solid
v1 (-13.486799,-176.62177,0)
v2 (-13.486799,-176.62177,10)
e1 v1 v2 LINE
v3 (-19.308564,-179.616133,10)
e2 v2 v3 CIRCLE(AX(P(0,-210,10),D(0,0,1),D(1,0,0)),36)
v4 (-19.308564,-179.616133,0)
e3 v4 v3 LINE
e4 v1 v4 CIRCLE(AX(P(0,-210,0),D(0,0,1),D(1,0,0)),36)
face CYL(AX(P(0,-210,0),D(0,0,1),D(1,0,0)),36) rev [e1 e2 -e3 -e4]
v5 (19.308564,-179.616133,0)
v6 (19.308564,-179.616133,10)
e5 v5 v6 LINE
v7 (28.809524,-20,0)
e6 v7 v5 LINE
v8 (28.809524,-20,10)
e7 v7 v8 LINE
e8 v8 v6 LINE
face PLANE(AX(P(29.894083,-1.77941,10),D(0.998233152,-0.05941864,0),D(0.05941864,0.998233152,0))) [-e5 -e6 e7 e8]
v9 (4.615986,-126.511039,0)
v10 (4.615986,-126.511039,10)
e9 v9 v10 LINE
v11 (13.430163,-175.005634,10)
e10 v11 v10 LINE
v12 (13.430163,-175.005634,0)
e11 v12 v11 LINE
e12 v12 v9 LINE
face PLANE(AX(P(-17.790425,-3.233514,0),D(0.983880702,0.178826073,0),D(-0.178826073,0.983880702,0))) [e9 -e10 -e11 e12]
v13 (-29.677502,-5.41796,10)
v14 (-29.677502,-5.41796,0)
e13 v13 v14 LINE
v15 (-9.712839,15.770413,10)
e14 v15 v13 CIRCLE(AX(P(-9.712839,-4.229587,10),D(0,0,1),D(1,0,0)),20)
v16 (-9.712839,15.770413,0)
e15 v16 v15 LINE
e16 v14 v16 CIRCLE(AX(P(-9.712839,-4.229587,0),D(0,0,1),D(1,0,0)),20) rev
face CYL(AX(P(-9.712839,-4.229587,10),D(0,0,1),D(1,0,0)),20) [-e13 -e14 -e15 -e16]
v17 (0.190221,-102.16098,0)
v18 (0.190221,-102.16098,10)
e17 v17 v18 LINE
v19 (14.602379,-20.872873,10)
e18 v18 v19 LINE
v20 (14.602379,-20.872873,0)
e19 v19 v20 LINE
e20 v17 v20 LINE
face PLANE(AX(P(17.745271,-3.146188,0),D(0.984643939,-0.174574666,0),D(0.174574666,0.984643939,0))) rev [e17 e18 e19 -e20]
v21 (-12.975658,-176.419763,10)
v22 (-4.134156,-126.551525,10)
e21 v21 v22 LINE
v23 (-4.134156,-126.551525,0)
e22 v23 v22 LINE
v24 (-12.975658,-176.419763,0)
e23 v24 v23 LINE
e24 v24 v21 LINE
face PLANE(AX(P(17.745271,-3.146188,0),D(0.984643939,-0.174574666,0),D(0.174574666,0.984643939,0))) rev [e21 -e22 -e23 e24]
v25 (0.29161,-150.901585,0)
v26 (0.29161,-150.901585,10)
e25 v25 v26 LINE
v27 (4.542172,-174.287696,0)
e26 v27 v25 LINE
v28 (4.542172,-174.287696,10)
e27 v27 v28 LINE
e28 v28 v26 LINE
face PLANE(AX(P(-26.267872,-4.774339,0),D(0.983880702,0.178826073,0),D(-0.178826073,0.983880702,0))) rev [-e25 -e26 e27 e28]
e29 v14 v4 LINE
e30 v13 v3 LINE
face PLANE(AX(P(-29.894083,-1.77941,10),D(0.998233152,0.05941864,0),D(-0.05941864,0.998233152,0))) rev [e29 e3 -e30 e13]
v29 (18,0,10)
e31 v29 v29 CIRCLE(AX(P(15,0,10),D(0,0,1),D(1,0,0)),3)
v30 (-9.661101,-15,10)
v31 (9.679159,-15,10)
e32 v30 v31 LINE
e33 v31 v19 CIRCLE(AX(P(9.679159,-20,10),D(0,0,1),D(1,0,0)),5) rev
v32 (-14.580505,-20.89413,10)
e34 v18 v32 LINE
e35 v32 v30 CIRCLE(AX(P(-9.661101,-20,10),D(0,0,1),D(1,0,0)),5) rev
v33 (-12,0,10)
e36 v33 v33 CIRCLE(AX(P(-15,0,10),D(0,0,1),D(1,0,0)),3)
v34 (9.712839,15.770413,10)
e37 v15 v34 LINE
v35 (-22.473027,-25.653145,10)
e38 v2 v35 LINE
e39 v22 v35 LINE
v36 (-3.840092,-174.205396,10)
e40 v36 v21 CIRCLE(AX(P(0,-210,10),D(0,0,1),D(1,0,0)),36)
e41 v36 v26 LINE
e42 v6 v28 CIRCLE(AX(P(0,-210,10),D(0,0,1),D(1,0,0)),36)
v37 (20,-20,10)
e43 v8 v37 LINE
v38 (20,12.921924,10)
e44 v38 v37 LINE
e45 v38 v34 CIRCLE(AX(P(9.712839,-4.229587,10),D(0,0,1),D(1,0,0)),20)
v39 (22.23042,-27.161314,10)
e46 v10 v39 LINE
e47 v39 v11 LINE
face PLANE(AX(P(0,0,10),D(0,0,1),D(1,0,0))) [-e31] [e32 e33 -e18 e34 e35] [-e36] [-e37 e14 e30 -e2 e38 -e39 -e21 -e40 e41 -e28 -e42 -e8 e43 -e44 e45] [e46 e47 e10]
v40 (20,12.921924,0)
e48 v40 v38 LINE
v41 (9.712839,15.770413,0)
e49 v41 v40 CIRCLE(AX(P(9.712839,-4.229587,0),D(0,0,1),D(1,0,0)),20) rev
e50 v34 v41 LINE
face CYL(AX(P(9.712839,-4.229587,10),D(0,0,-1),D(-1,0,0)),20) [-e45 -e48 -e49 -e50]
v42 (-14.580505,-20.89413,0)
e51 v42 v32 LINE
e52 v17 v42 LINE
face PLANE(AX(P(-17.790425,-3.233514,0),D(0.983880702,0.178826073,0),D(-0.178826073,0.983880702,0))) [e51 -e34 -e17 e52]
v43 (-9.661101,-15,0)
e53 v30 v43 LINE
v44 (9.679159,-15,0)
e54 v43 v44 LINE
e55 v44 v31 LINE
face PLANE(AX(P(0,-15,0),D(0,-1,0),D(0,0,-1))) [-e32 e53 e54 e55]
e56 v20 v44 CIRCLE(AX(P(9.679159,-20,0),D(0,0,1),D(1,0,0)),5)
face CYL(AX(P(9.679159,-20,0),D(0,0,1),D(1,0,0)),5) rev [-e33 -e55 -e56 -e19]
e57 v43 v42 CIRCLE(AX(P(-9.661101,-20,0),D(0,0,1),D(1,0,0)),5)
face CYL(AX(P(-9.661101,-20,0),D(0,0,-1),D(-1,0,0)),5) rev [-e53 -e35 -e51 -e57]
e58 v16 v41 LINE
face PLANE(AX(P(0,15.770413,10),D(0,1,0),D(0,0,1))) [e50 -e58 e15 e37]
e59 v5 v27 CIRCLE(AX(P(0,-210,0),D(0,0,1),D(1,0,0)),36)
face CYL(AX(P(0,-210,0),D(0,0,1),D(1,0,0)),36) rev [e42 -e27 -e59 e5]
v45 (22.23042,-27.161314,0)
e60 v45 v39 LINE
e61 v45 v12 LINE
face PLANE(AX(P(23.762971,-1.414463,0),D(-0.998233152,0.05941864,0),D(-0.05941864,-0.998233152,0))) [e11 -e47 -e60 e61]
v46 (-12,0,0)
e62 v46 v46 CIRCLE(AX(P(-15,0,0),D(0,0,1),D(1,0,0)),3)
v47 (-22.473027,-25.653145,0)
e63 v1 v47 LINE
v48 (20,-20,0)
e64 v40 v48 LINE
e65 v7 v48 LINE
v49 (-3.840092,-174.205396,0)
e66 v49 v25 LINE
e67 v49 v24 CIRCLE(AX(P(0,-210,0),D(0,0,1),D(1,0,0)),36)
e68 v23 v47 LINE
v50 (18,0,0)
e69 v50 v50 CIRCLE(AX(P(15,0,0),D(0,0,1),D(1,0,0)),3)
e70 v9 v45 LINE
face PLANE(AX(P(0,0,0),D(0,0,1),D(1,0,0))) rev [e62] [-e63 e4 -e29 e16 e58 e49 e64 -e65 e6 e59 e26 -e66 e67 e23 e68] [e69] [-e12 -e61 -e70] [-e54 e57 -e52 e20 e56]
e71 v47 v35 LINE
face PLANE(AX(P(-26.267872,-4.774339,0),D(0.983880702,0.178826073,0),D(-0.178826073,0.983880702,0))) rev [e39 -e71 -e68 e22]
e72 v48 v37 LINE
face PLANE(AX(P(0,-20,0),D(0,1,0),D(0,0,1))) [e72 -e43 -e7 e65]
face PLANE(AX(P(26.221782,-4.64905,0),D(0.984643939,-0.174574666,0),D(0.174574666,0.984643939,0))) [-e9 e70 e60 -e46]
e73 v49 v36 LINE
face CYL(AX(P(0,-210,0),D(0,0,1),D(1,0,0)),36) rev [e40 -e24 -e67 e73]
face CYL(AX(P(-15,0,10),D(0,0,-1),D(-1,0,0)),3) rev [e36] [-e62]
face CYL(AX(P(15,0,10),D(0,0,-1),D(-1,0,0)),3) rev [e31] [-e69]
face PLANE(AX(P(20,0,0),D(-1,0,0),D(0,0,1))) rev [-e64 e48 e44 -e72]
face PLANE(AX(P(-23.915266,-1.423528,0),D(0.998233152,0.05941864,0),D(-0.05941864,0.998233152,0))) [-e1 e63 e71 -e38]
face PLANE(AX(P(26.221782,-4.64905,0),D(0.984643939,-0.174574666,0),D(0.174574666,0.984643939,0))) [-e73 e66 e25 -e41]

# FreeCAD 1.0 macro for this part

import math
import FreeCAD as App
import Part
import Sketcher

V = App.Vector


def edges_at(feature, points):
    """Names of the edges that pass closest to the given points."""
    edges = feature.Shape.Edges
    near = lambda p: min(range(len(edges)), key=lambda i: edges[i].distToShape(Part.Vertex(*p))[0])
    return sorted({f"Edge{near(p) + 1}" for p in points})


def add_polygon(sketch, points):
    """Adds a closed chain of lines whose ends are joined by coincident constraints."""
    first, n = sketch.GeometryCount, len(points)
    for a, b in zip(points, points[1:] + points[:1]):
        sketch.addGeometry(Part.LineSegment(App.Vector(*a, 0), App.Vector(*b, 0)), False)
    for i in range(n):
        sketch.addConstraint(Sketcher.Constraint("Coincident", first + i, 2, first + (i + 1) % n, 1))

doc = App.newDocument("Part")
body = doc.addObject("PartDesign::Body", "Body")

sketch1 = body.newObject("Sketcher::SketchObject", "Sketch")
sketch1.AttachmentSupport = (doc.getObject("XY_Plane"), [""])
sketch1.MapMode = "FlatFace"
sketch1.addGeometry(Part.LineSegment(V(-30, 15.770413, 0), V(-30, 0, 0)), False)
sketch1.addGeometry(Part.LineSegment(V(-30, 0, 0), V(-17.5, -210, 0)), False)
sketch1.addGeometry(Part.ArcOfCircle(Part.Circle(V(0, -210, 0), V(0, 0, 1), 17.5), math.radians(180), math.radians(360)), False)
sketch1.addGeometry(Part.LineSegment(V(17.5, -210, 0), V(30, 0, 0)), False)
sketch1.addGeometry(Part.LineSegment(V(30, 0, 0), V(30, 15.770413, 0)), False)
sketch1.addGeometry(Part.LineSegment(V(30, 15.770413, 0), V(-30, 15.770413, 0)), False)
add_polygon(sketch1, [(-6, -205), (6, -205), (6, -215), (-6, -215)])
sketch1.addGeometry(Part.Circle(V(-15, 0, 0), V(0, 0, 1), 3), False)
sketch1.addGeometry(Part.Circle(V(15, 0, 0), V(0, 0, 1), 3), False)
sketch1.addConstraint([
    Sketcher.Constraint("Coincident", 0, 2, 1, 1),
    Sketcher.Constraint("Coincident", 1, 2, 2, 1),
    Sketcher.Constraint("Coincident", 2, 2, 3, 1),
    Sketcher.Constraint("Coincident", 3, 2, 4, 1),
    Sketcher.Constraint("Coincident", 4, 2, 5, 1),
    Sketcher.Constraint("Coincident", 5, 2, 0, 1),
    Sketcher.Constraint("Vertical", 0),
    Sketcher.Constraint("Vertical", 4),
    Sketcher.Constraint("Horizontal", 5),
    Sketcher.Constraint("Horizontal", 6),
    Sketcher.Constraint("Vertical", 7),
    Sketcher.Constraint("Horizontal", 8),
    Sketcher.Constraint("Vertical", 9),
    Sketcher.Constraint("Equal", 10, 11),
    Sketcher.Constraint("Symmetric", 10, 3, 11, 3, -1, 1),
    Sketcher.Constraint("Symmetric", 0, 2, 3, 2, -1, 1),
    Sketcher.Constraint("Symmetric", 1, 2, 2, 2, -2),
    Sketcher.Constraint("PointOnObject", 10, 3, -1),
    Sketcher.Constraint("PointOnObject", 0, 2, -1),
    Sketcher.Constraint("Horizontal", 2, 3, 1, 2),
    Sketcher.Constraint("Diameter", 10, 6.0),
    Sketcher.Constraint("Radius", 2, 17.5),
    Sketcher.Constraint("DistanceX", 5, 2, 5, 1, 60.0),
    Sketcher.Constraint("DistanceX", 6, 1, 6, 2, 12.0),
    Sketcher.Constraint("DistanceY", 7, 2, 7, 1, 10.0),
    Sketcher.Constraint("DistanceY", 2, 3, -1, 1, 210.0),
    Sketcher.Constraint("DistanceX", 10, 3, -1, 1, 15.0),
    Sketcher.Constraint("DistanceX", -1, 1, 6, 2, 6.0),
    Sketcher.Constraint("DistanceY", 6, 2, -1, 1, 205.0),
    Sketcher.Constraint("DistanceY", 0, 2, 0, 1, 15.770413),
])
pad1 = body.newObject("PartDesign::Pad", "Pad")
pad1.Profile = sketch1
pad1.Length = 10
doc.recompute()

fillet = body.newObject("PartDesign::Fillet", "Fillet")
fillet.Base = (pad1, edges_at(pad1, [(-30, 15.77, 5)]))
fillet.Radius = 20
doc.recompute()

fillet2 = body.newObject("PartDesign::Fillet", "Fillet001")
fillet2.Base = (fillet, edges_at(fillet, [(30, 15.77, 5)]))
fillet2.Radius = 20

sketch2 = body.newObject("Sketcher::SketchObject", "Sketch001")
sketch2.AttachmentSupport = (doc.getObject("XY_Plane"), [""])
sketch2.MapMode = "FlatFace"
add_polygon(sketch2, [(-15.651797, -15), (0.190221, -102.16098), (15.643623, -15)])
add_polygon(sketch2, [(-22.473027, -25.653145), (-13.367328, -178.628882), (-4.134156, -126.551525)])
add_polygon(sketch2, [(22.23042, -27.161314), (4.615986, -126.511039), (13.430163, -175.005634)])
sketch2.addGeometry(Part.LineSegment(V(0.29161, -150.901585, 0), V(-7.372445, -194.128735, 0)), False)
sketch2.addGeometry(Part.ArcOfCircle(Part.Circle(V(0, -210, 0), V(0, 0, 1), 17.5), math.radians(61.963358), math.radians(114.915589)), False)
sketch2.addGeometry(Part.LineSegment(V(8.225632, -194.553674, 0), V(0.29161, -150.901585, 0)), False)
sketch2.addConstraint([
    Sketcher.Constraint("Coincident", 9, 2, 10, 2),
    Sketcher.Constraint("Coincident", 10, 1, 11, 1),
    Sketcher.Constraint("Coincident", 11, 2, 9, 1),
    Sketcher.Constraint("Horizontal", 2),
    Sketcher.Constraint("PointOnObject", 10, 3, -2),
    Sketcher.Constraint("Parallel", 1, 4),
    Sketcher.Constraint("Parallel", 0, 5),
    Sketcher.Constraint("Parallel", 4, 6),
    Sketcher.Constraint("Parallel", 5, 7),
    Sketcher.Constraint("Parallel", 6, 9),
    Sketcher.Constraint("Parallel", 7, 11),
    Sketcher.Constraint("Radius", 10, 17.5),
    Sketcher.Constraint("DistanceY", 10, 3, -1, 1, 210.0),
    Sketcher.Constraint("DistanceY", 1, 2, -1, 1, 15.0),
    Sketcher.Constraint("Distance", 8, 148.106001),
    Sketcher.Constraint("Distance", 3, 153.2465),
    Sketcher.Constraint("Distance", 7, 49.289101),
    Sketcher.Constraint("Distance", 9, 43.901301),
    Sketcher.Constraint("DistanceX", 2, 2, 2, 1, 31.29542),
    Sketcher.Constraint("DistanceX", 5, 2, 3, 2, 9.105699),
    Sketcher.Constraint("DistanceX", 0, 2, 8, 2, 22.040199),
    Sketcher.Constraint("DistanceY", 9, 2, 7, 2, 19.123101),
    Sketcher.Constraint("Distance", 0, 88.588972),
    Sketcher.Constraint("Distance", 4, 52.889531),
    Sketcher.Constraint("Distance", 11, 44.367258),
    Sketcher.Constraint("DistanceX", -1, 1, 0, 2, 0.190221),
    Sketcher.Constraint("DistanceX", 3, 2, -1, 1, 13.367328),
    Sketcher.Constraint("DistanceY", 3, 2, -1, 1, 178.628882),
])
pocket1 = body.newObject("PartDesign::Pocket", "Pocket")
pocket1.Profile = sketch2
pocket1.Length = 10
pocket1.Reversed = True
doc.recompute()

fillet3 = body.newObject("PartDesign::Fillet", "Fillet002")
fillet3.Base = (pocket1, edges_at(pocket1, [
    (8.226, -194.554, 5),
    (-7.372, -194.129, 5),
    (-15.652, -15, 5),
    (15.644, -15, 5),
]))
fillet3.Radius = 5

sketch3 = body.newObject("Sketcher::SketchObject", "Sketch002")
sketch3.AttachmentSupport = (doc.getObject("XY_Plane"), [""])
sketch3.MapMode = "FlatFace"
sketch3.addGeometry(Part.LineSegment(V(20, -20, 0), V(28.809524, -20, 0)), False)
sketch3.addGeometry(Part.LineSegment(V(28.809524, -20, 0), V(29.677502, -5.41796, 0)), False)
sketch3.addGeometry(Part.ArcOfCircle(Part.Circle(V(9.712839, -4.229587, 0), V(0, 0, 1), 20), math.radians(-3.406444), math.radians(12.20906)), False)
sketch3.addGeometry(Part.ArcOfCircle(Part.Circle(V(9.712839, -4.229587, 0), V(0, 0, 1), 20), math.radians(12.20906), math.radians(59.045445)), False)
sketch3.addGeometry(Part.LineSegment(V(20, 12.921924, 0), V(20, -20, 0)), False)
sketch3.addGeometry(Part.ArcOfCircle(Part.Circle(V(0, -210, 0), V(0, 0, 1), 36), math.radians(71.8258), math.radians(82.75159)), False)
sketch3.addGeometry(Part.LineSegment(V(4.542172, -174.287696, 0), V(4.816305, -175.795947, 0)), False)
sketch3.addGeometry(Part.LineSegment(V(4.816305, -175.795947, 0), V(4.879901, -176.145845, 0)), False)
sketch3.addGeometry(Part.LineSegment(V(4.879901, -176.145845, 0), V(5.679005, -180.542422, 0)), False)
sketch3.addGeometry(Part.LineSegment(V(5.679005, -180.542422, 0), V(6.79531, -186.684207, 0)), False)
sketch3.addGeometry(Part.ArcOfCircle(Part.Circle(V(1.875907, -187.578337, 0), V(0, 0, 1), 5), math.radians(-94.782509), math.radians(10.301389)), False)
sketch3.addGeometry(Part.ArcOfCircle(Part.Circle(V(0, -210, 0), V(0, 0, 1), 17.5), math.radians(85.217491), math.radians(92.863928)), False)
sketch3.addGeometry(Part.ArcOfCircle(Part.Circle(V(-1.124194, -187.528102, 0), V(0, 0, 1), 5), math.radians(169.946093), math.radians(272.863928)), False)
sketch3.addGeometry(Part.LineSegment(V(-6.047413, -186.655229, 0), V(-4.940069, -180.409533, 0)), False)
sketch3.addGeometry(Part.LineSegment(V(-4.940069, -180.409533, 0), V(-4.167269, -176.050756, 0)), False)
sketch3.addGeometry(Part.LineSegment(V(-4.167269, -176.050756, 0), V(-4.122092, -175.795947, 0)), False)
sketch3.addGeometry(Part.LineSegment(V(-4.122092, -175.795947, 0), V(-3.840092, -174.205396, 0)), False)
sketch3.addGeometry(Part.ArcOfCircle(Part.Circle(V(0, -210, 0), V(0, 0, 1), 36), math.radians(96.123346), math.radians(108.1742)), False)
sketch3.addGeometry(Part.ArcOfCircle(Part.Circle(V(0, -209.999999, 0), V(0, 0, 1), 35.999999), math.radians(108.1742), math.radians(111.12691)), False)
sketch3.addGeometry(Part.LineSegment(V(-12.975658, -176.419763, 0), V(-13.345719, -178.507, 0)), False)
sketch3.addGeometry(Part.LineSegment(V(-13.345719, -178.507, 0), V(-13.367328, -178.628882, 0)), False)
sketch3.addGeometry(Part.LineSegment(V(-13.367328, -178.628882, 0), V(-13.373872, -178.518945, 0)), False)
sketch3.addGeometry(Part.LineSegment(V(-13.373872, -178.518945, 0), V(-13.486799, -176.62177, 0)), False)
sketch3.addGeometry(Part.ArcOfCircle(Part.Circle(V(0, -210, 0), V(0, 0, 1), 36), math.radians(112.001651), math.radians(122.435443)), False)
sketch3.addGeometry(Part.LineSegment(V(-19.308564, -179.616133, 0), V(-19.185516, -181.683339, 0)), False)
sketch3.addGeometry(Part.LineSegment(V(-19.185516, -181.683339, 0), V(-18.887386, -186.691919, 0)), False)
sketch3.addGeometry(Part.LineSegment(V(-18.887386, -186.691919, 0), V(-17.5, -210, 0)), False)
sketch3.addGeometry(Part.ArcOfCircle(Part.Circle(V(0, -210, 0), V(0, 0, 1), 17.5), math.radians(180), math.radians(360)), False)
sketch3.addGeometry(Part.LineSegment(V(17.5, -210, 0), V(18.887386, -186.691919, 0)), False)
sketch3.addGeometry(Part.LineSegment(V(18.887386, -186.691919, 0), V(19.185516, -181.683339, 0)), False)
sketch3.addGeometry(Part.LineSegment(V(19.185516, -181.683339, 0), V(19.308564, -179.616133, 0)), False)
sketch3.addGeometry(Part.ArcOfCircle(Part.Circle(V(0, -210, 0), V(0, 0, 1), 36), math.radians(57.564557), math.radians(71.8258)), False)
add_polygon(sketch3, [(-6, -215), (-6, -205), (6, -205), (6, -215)])
sketch3.addConstraint([
    Sketcher.Constraint("Coincident", 0, 2, 1, 1),
    Sketcher.Constraint("Coincident", 1, 2, 2, 1),
    Sketcher.Constraint("Coincident", 2, 2, 3, 1),
    Sketcher.Constraint("Coincident", 3, 2, 4, 1),
    Sketcher.Constraint("Coincident", 4, 2, 0, 1),
    Sketcher.Constraint("Coincident", 5, 2, 6, 1),
    Sketcher.Constraint("Coincident", 6, 2, 7, 1),
    Sketcher.Constraint("Coincident", 7, 2, 8, 1),
    Sketcher.Constraint("Coincident", 8, 2, 9, 1),
    Sketcher.Constraint("Coincident", 9, 2, 10, 2),
    Sketcher.Constraint("Coincident", 10, 1, 11, 1),
    Sketcher.Constraint("Coincident", 11, 2, 12, 2),
    Sketcher.Constraint("Coincident", 12, 1, 13, 1),
    Sketcher.Constraint("Coincident", 13, 2, 14, 1),
    Sketcher.Constraint("Coincident", 14, 2, 15, 1),
    Sketcher.Constraint("Coincident", 15, 2, 16, 1),
    Sketcher.Constraint("Coincident", 16, 2, 17, 1),
    Sketcher.Constraint("Coincident", 17, 2, 18, 1),
    Sketcher.Constraint("Coincident", 18, 2, 19, 1),
    Sketcher.Constraint("Coincident", 19, 2, 20, 1),
    Sketcher.Constraint("Coincident", 20, 2, 21, 1),
    Sketcher.Constraint("Coincident", 21, 2, 22, 1),
    Sketcher.Constraint("Coincident", 22, 2, 23, 1),
    Sketcher.Constraint("Coincident", 23, 2, 24, 1),
    Sketcher.Constraint("Coincident", 24, 2, 25, 1),
    Sketcher.Constraint("Coincident", 25, 2, 26, 1),
    Sketcher.Constraint("Coincident", 26, 2, 27, 1),
    Sketcher.Constraint("Coincident", 27, 2, 28, 1),
    Sketcher.Constraint("Coincident", 28, 2, 29, 1),
    Sketcher.Constraint("Coincident", 29, 2, 30, 1),
    Sketcher.Constraint("Coincident", 30, 2, 31, 1),
    Sketcher.Constraint("Coincident", 31, 2, 5, 1),
    Sketcher.Constraint("Horizontal", 0),
    Sketcher.Constraint("Vertical", 4),
    Sketcher.Constraint("Vertical", 32),
    Sketcher.Constraint("Horizontal", 33),
    Sketcher.Constraint("Vertical", 34),
    Sketcher.Constraint("Horizontal", 35),
    Sketcher.Constraint("Coincident", 3, 3, 2, 3),
    Sketcher.Constraint("Coincident", 11, 3, 5, 3),
    Sketcher.Constraint("Coincident", 17, 3, 5, 3),
    Sketcher.Constraint("Coincident", 18, 3, 5, 3),
    Sketcher.Constraint("Coincident", 23, 3, 5, 3),
    Sketcher.Constraint("Coincident", 27, 3, 5, 3),
    Sketcher.Constraint("Coincident", 31, 3, 5, 3),
    Sketcher.Constraint("PointOnObject", 5, 3, -2),
    Sketcher.Constraint("PointOnObject", 2, 2, -1),
    Sketcher.Constraint("Radius", 2, 20.0),
    Sketcher.Constraint("Radius", 5, 36.0),
    Sketcher.Constraint("Radius", 10, 5.0),
    Sketcher.Constraint("Radius", 12, 5.0),
    Sketcher.Constraint("Radius", 17, 36.0),
    Sketcher.Constraint("Radius", 23, 36.0),
    Sketcher.Constraint("Radius", 11, 17.5),
    Sketcher.Constraint("Radius", 27, 17.5),
    Sketcher.Constraint("DistanceX", 33, 1, 33, 2, 12.0),
    Sketcher.Constraint("DistanceY", 32, 1, 32, 2, 10.0),
    Sketcher.Constraint("DistanceY", 5, 3, -1, 1, 210.0),
    Sketcher.Constraint("DistanceY", 0, 2, -1, 1, 20.0),
    Sketcher.Constraint("DistanceX", -1, 1, 3, 2, 20.0),
    Sketcher.Constraint("DistanceY", 26, 2, -1, 1, 210.0),
    Sketcher.Constraint("DistanceY", 27, 2, -1, 1, 210.0),
    Sketcher.Constraint("DistanceX", 32, 2, -1, 1, 6.0),
    Sketcher.Constraint("DistanceY", 32, 2, -1, 1, 205.0),
    Sketcher.Constraint("DistanceY", 19, 2, -1, 1, 178.507),
    Sketcher.Constraint("DistanceX", 15, 2, 16, 2, 0.282),
    Sketcher.Constraint("DistanceX", 18, 2, 17, 2, 1.747001),
    Sketcher.Constraint("DistanceY", 21, 2, 17, 2, 2.722999),
    Sketcher.Constraint("Distance", 13, 6.343101),
    Sketcher.Constraint("DistanceX", -1, 1, 7, 2, 4.879901),
    Sketcher.Constraint("DistanceX", 22, 2, -1, 1, 13.486799),
    Sketcher.Constraint("DistanceX", 12, 3, 10, 3, 3.0001),
    Sketcher.Constraint("DistanceX", 10, 3, 6, 2, 2.940399),
    Sketcher.Constraint("DistanceY", 7, 2, 6, 2, 0.349898),
    Sketcher.Constraint("DistanceX", 6, 2, 8, 2, 0.8627),
    Sketcher.Constraint("DistanceY", 10, 1, 12, 1, 5.9057),
    Sketcher.Constraint("DistanceX", 13, 2, 14, 2, 0.772799),
    Sketcher.Constraint("DistanceY", 7, 2, 15, 2, 0.349898),
    Sketcher.Constraint("DistanceY", 5, 2, 16, 2, 0.0823),
    Sketcher.Constraint("DistanceY", 7, 2, 31, 2, 0.349898),
    Sketcher.Constraint("Distance", 1, 14.60785),
    Sketcher.Constraint("Distance", 6, 1.532961),
    Sketcher.Constraint("Distance", 7, 0.355631),
    Sketcher.Constraint("Distance", 8, 4.468608),
    Sketcher.Constraint("Distance", 19, 2.119788),
    Sketcher.Constraint("Distance", 21, 0.110131),
    Sketcher.Constraint("DistanceX", 0, 1, 0, 2, 8.809524),
    Sketcher.Constraint("DistanceY", 4, 2, 4, 1, 32.921924),
    Sketcher.Constraint("DistanceX", -1, 1, 2, 3, 9.712839),
    Sketcher.Constraint("DistanceX", -1, 1, 9, 2, 6.79531),
    Sketcher.Constraint("DistanceX", -1, 1, 10, 1, 1.459039),
    Sketcher.Constraint("DistanceX", 13, 2, -1, 1, 4.940069),
    Sketcher.Constraint("DistanceX", 19, 2, -1, 1, 13.345719),
    Sketcher.Constraint("DistanceX", 20, 2, -1, 1, 13.367328),
    Sketcher.Constraint("DistanceY", 20, 2, -1, 1, 178.628882),
    Sketcher.Constraint("DistanceY", 24, 2, -1, 1, 181.683339),
    Sketcher.Constraint("DistanceY", 25, 2, -1, 1, 186.691919),
    Sketcher.Constraint("DistanceY", 28, 2, -1, 1, 186.691919),
    Sketcher.Constraint("DistanceY", 29, 2, -1, 1, 181.683339),
    Sketcher.Constraint("DistanceY", 10, 3, 5, 2, 13.290641),
    Sketcher.Constraint("DistanceX", 11, 2, 10, 1, 2.333411),
    Sketcher.Constraint("DistanceY", 14, 2, 5, 2, 1.763061),
    Sketcher.Constraint("DistanceY", 23, 2, 20, 2, 0.987251),
    Sketcher.Constraint("DistanceX", 23, 2, 24, 2, 0.123048),
    Sketcher.Constraint("DistanceX", 24, 2, 25, 2, 0.29813),
    Sketcher.Constraint("DistanceX", 8, 2, 28, 2, 13.208381),
    Sketcher.Constraint("DistanceX", 28, 2, 29, 2, 0.29813),
    Sketcher.Constraint("DistanceX", 29, 2, 30, 2, 0.123048),
])
pocket2 = body.newObject("PartDesign::Pocket", "Pocket001")
pocket2.Profile = sketch3
pocket2.Length = 10
pocket2.Reversed = True

doc.recompute()
